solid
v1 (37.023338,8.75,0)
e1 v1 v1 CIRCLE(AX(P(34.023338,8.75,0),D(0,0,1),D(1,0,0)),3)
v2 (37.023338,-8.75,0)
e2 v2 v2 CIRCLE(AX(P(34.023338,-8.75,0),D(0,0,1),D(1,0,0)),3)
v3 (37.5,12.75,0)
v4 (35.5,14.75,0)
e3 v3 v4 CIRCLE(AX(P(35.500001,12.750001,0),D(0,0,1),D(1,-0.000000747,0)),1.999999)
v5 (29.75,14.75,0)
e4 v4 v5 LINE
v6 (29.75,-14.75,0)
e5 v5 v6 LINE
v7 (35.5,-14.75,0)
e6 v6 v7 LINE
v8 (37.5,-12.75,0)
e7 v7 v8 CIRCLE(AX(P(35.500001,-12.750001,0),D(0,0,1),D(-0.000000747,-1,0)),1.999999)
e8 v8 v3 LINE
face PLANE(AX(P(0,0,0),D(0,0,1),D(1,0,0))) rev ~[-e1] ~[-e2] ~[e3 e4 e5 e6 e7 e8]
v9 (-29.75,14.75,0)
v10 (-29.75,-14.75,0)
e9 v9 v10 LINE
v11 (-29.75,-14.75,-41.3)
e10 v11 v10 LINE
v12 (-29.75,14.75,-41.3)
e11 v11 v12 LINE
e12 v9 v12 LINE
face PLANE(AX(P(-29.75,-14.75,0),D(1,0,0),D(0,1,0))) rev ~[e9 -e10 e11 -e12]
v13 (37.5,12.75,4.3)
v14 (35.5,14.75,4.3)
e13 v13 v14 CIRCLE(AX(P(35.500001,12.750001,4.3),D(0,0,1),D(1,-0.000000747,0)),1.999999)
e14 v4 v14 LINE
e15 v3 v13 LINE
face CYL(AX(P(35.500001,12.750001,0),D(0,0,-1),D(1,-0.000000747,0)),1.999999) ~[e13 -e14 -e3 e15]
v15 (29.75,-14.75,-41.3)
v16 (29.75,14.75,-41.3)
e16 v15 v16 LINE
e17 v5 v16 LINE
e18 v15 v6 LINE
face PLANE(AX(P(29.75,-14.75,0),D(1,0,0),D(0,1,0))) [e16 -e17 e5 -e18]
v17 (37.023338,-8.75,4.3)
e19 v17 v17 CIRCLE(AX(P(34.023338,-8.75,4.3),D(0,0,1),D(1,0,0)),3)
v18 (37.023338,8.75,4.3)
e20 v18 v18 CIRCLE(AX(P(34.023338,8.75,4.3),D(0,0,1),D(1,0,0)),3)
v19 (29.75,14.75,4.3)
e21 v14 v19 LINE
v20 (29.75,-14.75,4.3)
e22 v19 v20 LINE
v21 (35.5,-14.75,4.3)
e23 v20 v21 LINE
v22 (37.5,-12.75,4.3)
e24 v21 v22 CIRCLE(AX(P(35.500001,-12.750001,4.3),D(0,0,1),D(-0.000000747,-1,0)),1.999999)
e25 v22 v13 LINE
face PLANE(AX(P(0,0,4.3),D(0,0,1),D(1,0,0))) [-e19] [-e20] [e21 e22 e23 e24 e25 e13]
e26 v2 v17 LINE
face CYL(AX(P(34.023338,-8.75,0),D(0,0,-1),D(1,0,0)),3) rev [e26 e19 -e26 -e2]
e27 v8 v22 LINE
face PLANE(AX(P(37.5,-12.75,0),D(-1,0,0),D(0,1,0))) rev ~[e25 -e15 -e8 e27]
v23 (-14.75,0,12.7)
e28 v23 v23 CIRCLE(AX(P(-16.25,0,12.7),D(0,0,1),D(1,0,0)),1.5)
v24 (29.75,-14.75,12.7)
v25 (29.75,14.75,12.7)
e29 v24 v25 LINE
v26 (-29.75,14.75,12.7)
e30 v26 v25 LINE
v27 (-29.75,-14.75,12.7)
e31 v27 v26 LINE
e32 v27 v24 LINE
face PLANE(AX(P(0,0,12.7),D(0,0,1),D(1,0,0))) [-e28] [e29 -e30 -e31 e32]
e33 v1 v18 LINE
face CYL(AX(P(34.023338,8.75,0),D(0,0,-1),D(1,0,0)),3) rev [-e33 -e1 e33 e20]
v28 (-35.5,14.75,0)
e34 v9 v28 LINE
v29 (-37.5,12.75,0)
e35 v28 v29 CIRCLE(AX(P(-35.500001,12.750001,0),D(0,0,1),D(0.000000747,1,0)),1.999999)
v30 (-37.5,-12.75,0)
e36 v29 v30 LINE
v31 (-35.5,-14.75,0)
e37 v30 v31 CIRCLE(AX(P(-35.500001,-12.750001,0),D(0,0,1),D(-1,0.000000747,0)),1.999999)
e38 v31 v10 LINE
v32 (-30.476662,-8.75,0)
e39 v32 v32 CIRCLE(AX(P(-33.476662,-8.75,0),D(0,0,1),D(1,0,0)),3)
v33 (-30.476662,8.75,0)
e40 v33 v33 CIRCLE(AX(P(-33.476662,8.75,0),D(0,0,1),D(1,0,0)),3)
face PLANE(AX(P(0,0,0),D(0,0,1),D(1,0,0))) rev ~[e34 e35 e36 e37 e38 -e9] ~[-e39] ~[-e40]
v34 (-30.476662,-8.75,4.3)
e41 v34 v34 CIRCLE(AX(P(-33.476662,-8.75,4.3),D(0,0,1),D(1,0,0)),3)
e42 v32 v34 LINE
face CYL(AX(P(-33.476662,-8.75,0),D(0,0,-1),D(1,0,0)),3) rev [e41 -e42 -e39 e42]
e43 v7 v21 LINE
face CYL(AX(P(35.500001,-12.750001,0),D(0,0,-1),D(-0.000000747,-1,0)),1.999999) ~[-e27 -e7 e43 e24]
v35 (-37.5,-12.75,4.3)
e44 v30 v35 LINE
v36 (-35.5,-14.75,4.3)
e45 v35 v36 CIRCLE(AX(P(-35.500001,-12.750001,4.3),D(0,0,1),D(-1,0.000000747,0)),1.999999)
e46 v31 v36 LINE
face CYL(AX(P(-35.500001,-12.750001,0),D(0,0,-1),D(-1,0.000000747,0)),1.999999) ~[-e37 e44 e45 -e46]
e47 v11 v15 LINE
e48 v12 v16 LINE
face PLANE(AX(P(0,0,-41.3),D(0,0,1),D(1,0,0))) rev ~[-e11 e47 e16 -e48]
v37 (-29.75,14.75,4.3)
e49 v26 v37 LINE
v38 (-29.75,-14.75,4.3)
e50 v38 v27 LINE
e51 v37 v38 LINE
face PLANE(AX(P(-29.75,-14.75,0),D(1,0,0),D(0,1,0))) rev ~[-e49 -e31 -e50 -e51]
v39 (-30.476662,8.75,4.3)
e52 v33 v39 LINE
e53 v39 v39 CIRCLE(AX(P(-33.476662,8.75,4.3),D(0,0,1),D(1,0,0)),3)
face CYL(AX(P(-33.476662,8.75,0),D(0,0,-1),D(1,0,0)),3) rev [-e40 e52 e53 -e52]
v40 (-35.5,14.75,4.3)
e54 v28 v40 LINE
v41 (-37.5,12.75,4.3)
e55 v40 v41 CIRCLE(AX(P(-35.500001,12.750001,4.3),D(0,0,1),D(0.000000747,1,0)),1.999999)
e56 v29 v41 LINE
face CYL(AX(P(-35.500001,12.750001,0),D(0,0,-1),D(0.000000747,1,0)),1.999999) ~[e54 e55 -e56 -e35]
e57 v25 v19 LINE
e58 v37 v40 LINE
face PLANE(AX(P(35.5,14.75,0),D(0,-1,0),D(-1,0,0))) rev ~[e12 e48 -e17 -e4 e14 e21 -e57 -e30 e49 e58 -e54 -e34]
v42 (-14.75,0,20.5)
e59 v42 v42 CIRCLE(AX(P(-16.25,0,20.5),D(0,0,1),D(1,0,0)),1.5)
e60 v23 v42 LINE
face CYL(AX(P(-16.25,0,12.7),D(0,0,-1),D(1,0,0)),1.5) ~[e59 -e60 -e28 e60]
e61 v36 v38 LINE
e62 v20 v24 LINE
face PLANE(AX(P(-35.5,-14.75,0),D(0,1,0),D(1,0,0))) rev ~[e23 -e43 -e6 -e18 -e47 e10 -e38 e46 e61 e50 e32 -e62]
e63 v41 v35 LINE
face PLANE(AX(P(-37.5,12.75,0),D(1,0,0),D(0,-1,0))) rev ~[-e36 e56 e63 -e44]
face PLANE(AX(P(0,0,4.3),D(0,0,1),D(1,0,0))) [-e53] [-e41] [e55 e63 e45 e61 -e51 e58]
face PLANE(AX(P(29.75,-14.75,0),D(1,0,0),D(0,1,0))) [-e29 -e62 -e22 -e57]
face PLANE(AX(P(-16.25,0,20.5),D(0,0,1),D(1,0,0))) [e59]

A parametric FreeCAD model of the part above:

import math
import FreeCAD as App
import Part
import Sketcher


def add_polygon(sketch, points):
    """Adds a closed chain of lines whose ends are joined by coincident constraints."""
    first, n = sketch.GeometryCount, len(points)
    for a, b in zip(points, points[1:] + points[:1]):
        sketch.addGeometry(Part.LineSegment(App.Vector(*a, 0), App.Vector(*b, 0)), False)
    for i in range(n):
        sketch.addConstraint(Sketcher.Constraint("Coincident", first + i, 2, first + (i + 1) % n, 1))

doc = App.newDocument("Part")
body = doc.addObject("PartDesign::Body", "Body")

# Sketch on XY plane
sketch1 = body.newObject("Sketcher::SketchObject", "Sketch")
sketch1.AttachmentSupport = (doc.getObject("XY_Plane"), [""])
sketch1.MapMode = "FlatFace"
add_polygon(sketch1, [(-30, 15), (-30, -15), (30, -15), (30, 15)])  # lines 0-3
sketch1.addConstraint(Sketcher.Constraint("Vertical", 0))
sketch1.addConstraint(Sketcher.Constraint("Horizontal", 1))
sketch1.addConstraint(Sketcher.Constraint("Vertical", 2))
sketch1.addConstraint(Sketcher.Constraint("Horizontal", 3))
sketch1.addConstraint(Sketcher.Constraint("Symmetric", 0, 2, 2, 2, -1, 1))
sketch1.addConstraint(Sketcher.Constraint("DistanceX", 1, 1, 1, 2, 59.5))
sketch1.addConstraint(Sketcher.Constraint("DistanceY", 0, 2, 0, 1, 29.5))
pad1 = body.newObject("PartDesign::Pad", "Pad")
pad1.Profile = sketch1
pad1.Type = "TwoLengths"
pad1.Length = 12.7
pad1.Length2 = 41.3

# Sketch on XY plane
sketch2 = body.newObject("Sketcher::SketchObject", "Sketch001")
sketch2.AttachmentSupport = (doc.getObject("XY_Plane"), [""])
sketch2.MapMode = "FlatFace"
sketch2.addGeometry(Part.LineSegment(App.Vector(-35.5, -14.8, 0), App.Vector(35.5, -14.8, 0)), False)
sketch2.addGeometry(Part.ArcOfCircle(Part.Circle(App.Vector(35.5, -12.8, 0), App.Vector(0, 0, 1), 2), math.radians(-90), math.radians(0)), False)
sketch2.addGeometry(Part.LineSegment(App.Vector(37.5, -12.8, 0), App.Vector(37.5, 12.8, 0)), False)
sketch2.addGeometry(Part.ArcOfCircle(Part.Circle(App.Vector(35.5, 12.8, 0), App.Vector(0, 0, 1), 2), math.radians(0), math.radians(90)), False)
sketch2.addGeometry(Part.LineSegment(App.Vector(35.5, 14.8, 0), App.Vector(-35.5, 14.8, 0)), False)
sketch2.addGeometry(Part.ArcOfCircle(Part.Circle(App.Vector(-35.5, 12.8, 0), App.Vector(0, 0, 1), 2), math.radians(90), math.radians(180)), False)
sketch2.addGeometry(Part.LineSegment(App.Vector(-37.5, 12.8, 0), App.Vector(-37.5, -12.8, 0)), False)
sketch2.addGeometry(Part.ArcOfCircle(Part.Circle(App.Vector(-35.5, -12.8, 0), App.Vector(0, 0, 1), 2), math.radians(180), math.radians(270)), False)
sketch2.addGeometry(Part.Circle(App.Vector(-33.5, -8.8, 0), App.Vector(0, 0, 1), 3), False)
sketch2.addGeometry(Part.Circle(App.Vector(34, -8.8, 0), App.Vector(0, 0, 1), 3), False)
sketch2.addGeometry(Part.Circle(App.Vector(-33.5, 8.8, 0), App.Vector(0, 0, 1), 3), False)
sketch2.addGeometry(Part.Circle(App.Vector(34, 8.8, 0), App.Vector(0, 0, 1), 3), False)
sketch2.addConstraint(Sketcher.Constraint("Tangent", 0, 2, 1, 1))
sketch2.addConstraint(Sketcher.Constraint("Tangent", 1, 2, 2, 1))
sketch2.addConstraint(Sketcher.Constraint("Tangent", 2, 2, 3, 1))
sketch2.addConstraint(Sketcher.Constraint("Tangent", 3, 2, 4, 1))
sketch2.addConstraint(Sketcher.Constraint("Tangent", 4, 2, 5, 1))
sketch2.addConstraint(Sketcher.Constraint("Tangent", 5, 2, 6, 1))
sketch2.addConstraint(Sketcher.Constraint("Tangent", 6, 2, 7, 1))
sketch2.addConstraint(Sketcher.Constraint("Tangent", 7, 2, 0, 1))
sketch2.addConstraint(Sketcher.Constraint("Horizontal", 0))
sketch2.addConstraint(Sketcher.Constraint("Vertical", 2))
sketch2.addConstraint(Sketcher.Constraint("Horizontal", 4))
sketch2.addConstraint(Sketcher.Constraint("Vertical", 6))
sketch2.addConstraint(Sketcher.Constraint("Equal", 1, 3))
sketch2.addConstraint(Sketcher.Constraint("Equal", 3, 5))
sketch2.addConstraint(Sketcher.Constraint("Equal", 5, 7))
sketch2.addConstraint(Sketcher.Constraint("Equal", 8, 9))
sketch2.addConstraint(Sketcher.Constraint("Equal", 9, 10))
sketch2.addConstraint(Sketcher.Constraint("Equal", 10, 11))
sketch2.addConstraint(Sketcher.Constraint("Symmetric", 1, 3, 5, 3, -1, 1))
sketch2.addConstraint(Sketcher.Constraint("Symmetric", 8, 3, 10, 3, -1))
sketch2.addConstraint(Sketcher.Constraint("Symmetric", 9, 3, 11, 3, -1))
sketch2.addConstraint(Sketcher.Constraint("Horizontal", 8, 3, 9, 3))
sketch2.addConstraint(Sketcher.Constraint("Diameter", 8, 6.0))
sketch2.addConstraint(Sketcher.Constraint("Radius", 1, 1.999999))
sketch2.addConstraint(Sketcher.Constraint("DistanceX", 0, 1, 0, 2, 71.0))
sketch2.addConstraint(Sketcher.Constraint("DistanceY", 2, 1, 2, 2, 25.5))
sketch2.addConstraint(Sketcher.Constraint("DistanceY", 7, 3, 8, 3, 4.000001))
sketch2.addConstraint(Sketcher.Constraint("DistanceX", 8, 3, 9, 3, 67.5))
sketch2.addConstraint(Sketcher.Constraint("DistanceX", 8, 3, -1, 1, 33.476662))
pad2 = body.newObject("PartDesign::Pad", "Pad001")
pad2.Profile = sketch2
pad2.Length = 4.3

# Sketch on XY plane
sketch3 = body.newObject("Sketcher::SketchObject", "Sketch002")
sketch3.AttachmentSupport = (doc.getObject("XY_Plane"), [""])
sketch3.MapMode = "FlatFace"
sketch3.AttachmentOffset = App.Placement(App.Vector(0, 0, 12.7), App.Rotation())
sketch3.addGeometry(Part.Circle(App.Vector(-16.2, 0, 0), App.Vector(0, 0, 1), 1.5), False)
sketch3.addConstraint(Sketcher.Constraint("PointOnObject", 0, 3, -1))
sketch3.addConstraint(Sketcher.Constraint("Diameter", 0, 3.0))
sketch3.addConstraint(Sketcher.Constraint("DistanceX", 0, 3, -1, 1, 16.25))
pad3 = body.newObject("PartDesign::Pad", "Pad002")
pad3.Profile = sketch3
pad3.Length = 7.8

doc.recompute()
